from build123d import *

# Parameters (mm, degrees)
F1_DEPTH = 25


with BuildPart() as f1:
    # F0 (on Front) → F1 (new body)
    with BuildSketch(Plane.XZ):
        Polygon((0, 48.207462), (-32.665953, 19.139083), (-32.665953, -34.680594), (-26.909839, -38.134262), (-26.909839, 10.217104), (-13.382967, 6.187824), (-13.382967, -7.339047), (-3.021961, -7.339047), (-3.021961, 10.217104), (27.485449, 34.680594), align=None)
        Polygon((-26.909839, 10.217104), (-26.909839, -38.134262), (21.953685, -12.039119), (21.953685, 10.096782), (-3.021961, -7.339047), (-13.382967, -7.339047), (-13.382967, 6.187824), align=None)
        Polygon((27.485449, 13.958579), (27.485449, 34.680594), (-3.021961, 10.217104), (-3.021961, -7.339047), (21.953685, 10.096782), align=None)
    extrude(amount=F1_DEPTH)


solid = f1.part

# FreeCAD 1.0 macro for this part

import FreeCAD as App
import Part
import Sketcher
from FreeCAD import Vector

doc = App.newDocument("Part")
body = doc.addObject("PartDesign::Body", "Body")

# Sketch on XZ plane
sketch1 = body.newObject("Sketcher::SketchObject", "Sketch")
sketch1.AttachmentSupport = (doc.getObject("XZ_Plane"), [""])
sketch1.MapMode = "FlatFace"
sketch1.addGeometry([
    Part.LineSegment(Vector(0, 48.207462, 0), Vector(-32.665953, 19.139083, 0)),  # 0
    Part.LineSegment(Vector(-32.665953, 19.139083, 0), Vector(-32.665953, -34.680594, 0)),  # 1
    Part.LineSegment(Vector(-32.665953, -34.680594, 0), Vector(-26.909839, -38.134262, 0)),  # 2
    Part.LineSegment(Vector(-26.909839, -38.134262, 0), Vector(21.953685, -12.039119, 0)),  # 3
    Part.LineSegment(Vector(21.953685, -12.039119, 0), Vector(21.953685, 10.096782, 0)),  # 4
    Part.LineSegment(Vector(21.953685, 10.096782, 0), Vector(27.485449, 13.958579, 0)),  # 5
    Part.LineSegment(Vector(27.485449, 13.958579, 0), Vector(27.485449, 34.680594, 0)),  # 6
    Part.LineSegment(Vector(27.485449, 34.680594, 0), Vector(0, 48.207462, 0)),  # 7
], False)
sketch1.addConstraint([
    Sketcher.Constraint("Coincident", 0, 2, 1, 1),
    Sketcher.Constraint("Coincident", 1, 2, 2, 1),
    Sketcher.Constraint("Coincident", 2, 2, 3, 1),
    Sketcher.Constraint("Coincident", 3, 2, 4, 1),
    Sketcher.Constraint("Coincident", 4, 2, 5, 1),
    Sketcher.Constraint("Coincident", 5, 2, 6, 1),
    Sketcher.Constraint("Coincident", 6, 2, 7, 1),
    Sketcher.Constraint("Coincident", 7, 2, 0, 1),
    Sketcher.Constraint("Vertical", 1),
    Sketcher.Constraint("Vertical", 4),
    Sketcher.Constraint("Vertical", 6),
    Sketcher.Constraint("PointOnObject", 7, 2, -2),
    Sketcher.Constraint("DistanceY", 4, 1, 4, 2, 22.135901),
    Sketcher.Constraint("Distance", 5, 6.746398),
    Sketcher.Constraint("DistanceY", 3, 2, 0, 2, 31.178202),
    Sketcher.Constraint("DistanceY", 3, 2, 5, 2, 25.997698),
    Sketcher.Constraint("Distance", 3, 55.39495),
    Sketcher.Constraint("Distance", 7, 30.633741),
    Sketcher.Constraint("DistanceY", 1, 2, 1, 1, 53.819677),
    Sketcher.Constraint("DistanceY", 6, 1, 6, 2, 20.722015),
    Sketcher.Constraint("DistanceX", 2, 2, -1, 1, 26.909839),
    Sketcher.Constraint("DistanceY", 3, 2, -1, 1, 12.039119),
    Sketcher.Constraint("DistanceX", -1, 1, 5, 2, 27.485449),
    Sketcher.Constraint("DistanceX", 1, 2, 3, 2, 54.619638),
])
pad1 = body.newObject("PartDesign::Pad", "Pad")
pad1.Profile = sketch1
pad1.Length = 25

doc.recompute()
